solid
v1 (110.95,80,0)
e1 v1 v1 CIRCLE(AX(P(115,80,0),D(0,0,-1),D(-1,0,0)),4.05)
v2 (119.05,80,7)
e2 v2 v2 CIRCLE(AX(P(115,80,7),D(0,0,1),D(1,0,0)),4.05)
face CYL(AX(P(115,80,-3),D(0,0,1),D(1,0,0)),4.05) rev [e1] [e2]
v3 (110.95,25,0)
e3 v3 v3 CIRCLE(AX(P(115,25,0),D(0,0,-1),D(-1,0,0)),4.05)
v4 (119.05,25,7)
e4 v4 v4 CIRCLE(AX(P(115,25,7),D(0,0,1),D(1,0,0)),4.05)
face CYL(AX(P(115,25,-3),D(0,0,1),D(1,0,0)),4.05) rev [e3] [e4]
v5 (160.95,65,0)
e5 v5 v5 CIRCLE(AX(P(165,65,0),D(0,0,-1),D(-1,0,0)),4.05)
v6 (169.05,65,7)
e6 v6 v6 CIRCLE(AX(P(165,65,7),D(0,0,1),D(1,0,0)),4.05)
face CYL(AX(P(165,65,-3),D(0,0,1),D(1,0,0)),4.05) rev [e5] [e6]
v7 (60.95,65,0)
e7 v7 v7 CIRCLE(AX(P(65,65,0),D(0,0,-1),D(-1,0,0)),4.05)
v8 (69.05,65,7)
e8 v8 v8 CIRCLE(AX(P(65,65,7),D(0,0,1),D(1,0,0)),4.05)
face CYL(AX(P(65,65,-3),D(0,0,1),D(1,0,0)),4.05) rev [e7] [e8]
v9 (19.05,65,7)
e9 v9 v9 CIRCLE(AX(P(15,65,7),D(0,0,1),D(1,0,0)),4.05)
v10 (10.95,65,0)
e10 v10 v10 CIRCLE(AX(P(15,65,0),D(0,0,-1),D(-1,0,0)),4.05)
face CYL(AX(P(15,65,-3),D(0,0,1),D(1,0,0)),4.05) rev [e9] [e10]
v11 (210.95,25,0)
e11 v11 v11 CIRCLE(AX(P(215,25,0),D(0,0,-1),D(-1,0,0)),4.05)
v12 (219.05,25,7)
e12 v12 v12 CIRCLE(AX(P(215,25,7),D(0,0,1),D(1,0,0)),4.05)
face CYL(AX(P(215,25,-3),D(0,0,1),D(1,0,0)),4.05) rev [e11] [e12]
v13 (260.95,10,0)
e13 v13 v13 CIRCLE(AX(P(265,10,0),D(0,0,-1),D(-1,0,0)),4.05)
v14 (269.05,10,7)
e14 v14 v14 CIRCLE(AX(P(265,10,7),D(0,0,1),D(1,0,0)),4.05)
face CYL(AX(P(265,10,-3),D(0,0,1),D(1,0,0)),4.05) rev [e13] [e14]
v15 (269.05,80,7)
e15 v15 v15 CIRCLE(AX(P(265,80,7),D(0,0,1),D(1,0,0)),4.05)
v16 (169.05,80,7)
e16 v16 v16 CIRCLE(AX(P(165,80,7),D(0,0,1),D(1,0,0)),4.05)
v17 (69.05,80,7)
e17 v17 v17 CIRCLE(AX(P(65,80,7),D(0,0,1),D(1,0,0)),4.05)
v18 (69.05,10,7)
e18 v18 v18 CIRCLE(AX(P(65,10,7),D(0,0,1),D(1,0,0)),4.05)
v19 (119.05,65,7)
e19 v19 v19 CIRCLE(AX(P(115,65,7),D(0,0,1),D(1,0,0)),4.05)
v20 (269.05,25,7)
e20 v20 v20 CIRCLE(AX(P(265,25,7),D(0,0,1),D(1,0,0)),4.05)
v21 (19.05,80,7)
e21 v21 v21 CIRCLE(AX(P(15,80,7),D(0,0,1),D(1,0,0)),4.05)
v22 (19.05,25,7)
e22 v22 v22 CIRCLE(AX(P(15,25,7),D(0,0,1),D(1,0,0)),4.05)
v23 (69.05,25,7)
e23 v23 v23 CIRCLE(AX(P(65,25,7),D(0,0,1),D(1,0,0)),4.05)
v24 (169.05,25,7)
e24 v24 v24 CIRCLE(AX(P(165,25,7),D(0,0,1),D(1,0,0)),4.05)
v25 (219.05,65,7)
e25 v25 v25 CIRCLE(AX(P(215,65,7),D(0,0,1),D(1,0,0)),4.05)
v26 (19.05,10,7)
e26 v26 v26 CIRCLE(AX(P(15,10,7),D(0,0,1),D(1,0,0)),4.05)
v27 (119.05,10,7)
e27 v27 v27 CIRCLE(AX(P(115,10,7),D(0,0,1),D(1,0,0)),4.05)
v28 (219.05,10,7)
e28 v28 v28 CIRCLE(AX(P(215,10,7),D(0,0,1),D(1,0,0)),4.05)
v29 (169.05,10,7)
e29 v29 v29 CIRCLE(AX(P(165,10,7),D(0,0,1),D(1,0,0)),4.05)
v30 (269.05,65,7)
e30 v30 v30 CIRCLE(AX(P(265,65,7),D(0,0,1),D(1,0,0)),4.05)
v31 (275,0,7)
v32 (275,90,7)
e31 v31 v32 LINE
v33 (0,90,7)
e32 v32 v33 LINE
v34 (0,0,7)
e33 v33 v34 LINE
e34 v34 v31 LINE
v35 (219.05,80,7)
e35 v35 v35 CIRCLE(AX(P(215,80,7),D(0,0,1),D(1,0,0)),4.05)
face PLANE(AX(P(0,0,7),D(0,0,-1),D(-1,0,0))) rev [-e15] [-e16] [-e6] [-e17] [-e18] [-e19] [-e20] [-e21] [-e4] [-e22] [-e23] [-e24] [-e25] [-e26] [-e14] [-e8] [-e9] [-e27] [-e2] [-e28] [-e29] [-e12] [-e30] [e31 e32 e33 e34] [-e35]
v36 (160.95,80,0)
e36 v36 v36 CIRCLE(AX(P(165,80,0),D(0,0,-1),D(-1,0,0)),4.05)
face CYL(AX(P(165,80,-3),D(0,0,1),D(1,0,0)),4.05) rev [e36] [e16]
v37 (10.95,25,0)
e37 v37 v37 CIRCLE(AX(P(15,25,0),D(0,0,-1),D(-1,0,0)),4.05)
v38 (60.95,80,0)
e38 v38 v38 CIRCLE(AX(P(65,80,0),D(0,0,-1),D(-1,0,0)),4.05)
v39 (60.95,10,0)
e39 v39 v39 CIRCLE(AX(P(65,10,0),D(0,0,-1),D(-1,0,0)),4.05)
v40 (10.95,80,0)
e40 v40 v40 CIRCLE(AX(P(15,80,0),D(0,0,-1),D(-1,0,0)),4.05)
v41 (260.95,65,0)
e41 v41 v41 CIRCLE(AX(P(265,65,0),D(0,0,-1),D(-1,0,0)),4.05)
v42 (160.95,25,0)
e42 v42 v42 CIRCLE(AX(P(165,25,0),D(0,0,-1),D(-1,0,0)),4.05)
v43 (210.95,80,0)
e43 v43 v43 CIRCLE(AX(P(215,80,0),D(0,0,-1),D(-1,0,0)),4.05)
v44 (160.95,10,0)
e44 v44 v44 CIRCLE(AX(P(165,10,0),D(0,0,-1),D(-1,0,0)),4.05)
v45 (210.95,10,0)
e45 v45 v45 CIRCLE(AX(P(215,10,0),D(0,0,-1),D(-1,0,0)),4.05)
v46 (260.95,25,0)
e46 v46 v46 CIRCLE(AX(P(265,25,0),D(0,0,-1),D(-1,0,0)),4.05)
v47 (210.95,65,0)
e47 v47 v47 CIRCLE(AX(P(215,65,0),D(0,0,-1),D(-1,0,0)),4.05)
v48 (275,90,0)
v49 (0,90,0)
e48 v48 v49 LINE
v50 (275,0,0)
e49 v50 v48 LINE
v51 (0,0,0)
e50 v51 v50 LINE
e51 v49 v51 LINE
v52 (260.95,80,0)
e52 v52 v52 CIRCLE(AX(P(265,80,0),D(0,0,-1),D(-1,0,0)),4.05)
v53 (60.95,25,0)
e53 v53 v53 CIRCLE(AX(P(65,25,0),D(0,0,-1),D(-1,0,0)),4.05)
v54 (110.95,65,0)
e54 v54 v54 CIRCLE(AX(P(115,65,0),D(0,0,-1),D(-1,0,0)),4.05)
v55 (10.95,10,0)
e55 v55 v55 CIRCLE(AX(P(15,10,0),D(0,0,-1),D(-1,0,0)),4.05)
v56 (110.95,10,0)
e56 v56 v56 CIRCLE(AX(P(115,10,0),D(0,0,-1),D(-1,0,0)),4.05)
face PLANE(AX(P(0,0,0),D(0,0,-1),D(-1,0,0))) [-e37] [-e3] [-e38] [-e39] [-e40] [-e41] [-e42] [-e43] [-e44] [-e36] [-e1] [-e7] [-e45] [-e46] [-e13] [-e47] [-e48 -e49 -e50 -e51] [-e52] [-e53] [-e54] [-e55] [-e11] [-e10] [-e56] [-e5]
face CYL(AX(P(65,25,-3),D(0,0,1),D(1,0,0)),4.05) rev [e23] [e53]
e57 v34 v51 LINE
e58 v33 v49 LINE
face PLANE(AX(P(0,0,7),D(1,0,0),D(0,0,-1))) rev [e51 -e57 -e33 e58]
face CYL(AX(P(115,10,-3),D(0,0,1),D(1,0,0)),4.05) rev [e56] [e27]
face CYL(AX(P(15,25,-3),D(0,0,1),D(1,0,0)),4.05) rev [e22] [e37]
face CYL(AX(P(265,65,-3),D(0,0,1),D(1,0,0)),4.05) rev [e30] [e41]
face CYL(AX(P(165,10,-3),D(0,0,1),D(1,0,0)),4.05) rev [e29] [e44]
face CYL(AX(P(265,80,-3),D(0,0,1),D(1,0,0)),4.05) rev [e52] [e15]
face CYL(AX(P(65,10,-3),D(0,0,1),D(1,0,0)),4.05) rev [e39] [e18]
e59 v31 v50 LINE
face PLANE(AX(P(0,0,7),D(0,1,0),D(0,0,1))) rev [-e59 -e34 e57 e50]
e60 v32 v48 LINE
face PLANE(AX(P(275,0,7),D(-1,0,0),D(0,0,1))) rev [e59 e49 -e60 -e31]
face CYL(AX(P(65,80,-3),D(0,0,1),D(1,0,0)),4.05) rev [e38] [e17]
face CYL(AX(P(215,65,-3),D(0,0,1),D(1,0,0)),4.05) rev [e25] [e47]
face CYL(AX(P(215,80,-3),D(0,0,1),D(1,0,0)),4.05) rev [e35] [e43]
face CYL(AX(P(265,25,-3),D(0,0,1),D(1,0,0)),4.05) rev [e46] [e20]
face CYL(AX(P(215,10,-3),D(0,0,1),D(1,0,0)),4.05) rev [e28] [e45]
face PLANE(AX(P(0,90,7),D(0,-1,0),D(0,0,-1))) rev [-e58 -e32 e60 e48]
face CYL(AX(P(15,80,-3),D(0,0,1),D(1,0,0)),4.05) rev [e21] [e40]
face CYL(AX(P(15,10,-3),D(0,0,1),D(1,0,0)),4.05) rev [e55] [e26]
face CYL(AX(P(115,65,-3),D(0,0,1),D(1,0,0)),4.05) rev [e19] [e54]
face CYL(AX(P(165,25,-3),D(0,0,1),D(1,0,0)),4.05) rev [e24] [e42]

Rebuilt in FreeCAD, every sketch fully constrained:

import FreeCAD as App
import Part
import Sketcher

V = App.Vector

doc = App.newDocument("Part")
body = doc.addObject("PartDesign::Body", "Body")

# Sketch on XY plane
sketch1 = doc.addObject("Sketcher::SketchObject", "Sketch")
body.addObject(sketch1)
sketch1.AttachmentSupport = (doc.XY_Plane, [""])
sketch1.MapMode = "FlatFace"
sketch1.addGeometry(Part.LineSegment(V(0, 90, 0), V(0, 0, 0)), False)
sketch1.addGeometry(Part.LineSegment(V(0, 0, 0), V(275, 0, 0)), False)
sketch1.addGeometry(Part.LineSegment(V(275, 0, 0), V(275, 90, 0)), False)
sketch1.addGeometry(Part.LineSegment(V(275, 90, 0), V(0, 90, 0)), False)
sketch1.addConstraint(Sketcher.Constraint("Coincident", 0, 2, 1, 1))
sketch1.addConstraint(Sketcher.Constraint("Coincident", 1, 2, 2, 1))
sketch1.addConstraint(Sketcher.Constraint("Coincident", 2, 2, 3, 1))
sketch1.addConstraint(Sketcher.Constraint("Coincident", 3, 2, 0, 1))
sketch1.addConstraint(Sketcher.Constraint("Vertical", 0))
sketch1.addConstraint(Sketcher.Constraint("Horizontal", 1))
sketch1.addConstraint(Sketcher.Constraint("Vertical", 2))
sketch1.addConstraint(Sketcher.Constraint("Horizontal", 3))
sketch1.addConstraint(Sketcher.Constraint("Coincident", 0, 2, -1, 1))
sketch1.addConstraint(Sketcher.Constraint("DistanceX", 1, 1, 1, 2, 275.0))
sketch1.addConstraint(Sketcher.Constraint("DistanceY", 0, 2, 0, 1, 90.0))
pad1 = doc.addObject("PartDesign::Pad", "Pad")
body.addObject(pad1)
pad1.Profile = sketch1
pad1.Length = 7

# Sketch on XY plane
sketch2 = doc.addObject("Sketcher::SketchObject", "Sketch001")
body.addObject(sketch2)
sketch2.AttachmentSupport = (doc.XY_Plane, [""])
sketch2.MapMode = "FlatFace"
sketch2.AttachmentOffset = App.Placement(V(0, 0, 7), App.Rotation())
sketch2.addGeometry(Part.Circle(V(265, 65, 0), V(0, 0, 1), 4), False)
sketch2.addGeometry(Part.Circle(V(265, 25, 0), V(0, 0, 1), 4), False)
sketch2.addGeometry(Part.Circle(V(215, 65, 0), V(0, 0, 1), 4), False)
sketch2.addGeometry(Part.Circle(V(215, 25, 0), V(0, 0, 1), 4), False)
sketch2.addGeometry(Part.Circle(V(165, 65, 0), V(0, 0, 1), 4), False)
sketch2.addGeometry(Part.Circle(V(165, 25, 0), V(0, 0, 1), 4), False)
sketch2.addGeometry(Part.Circle(V(115, 65, 0), V(0, 0, 1), 4), False)
sketch2.addGeometry(Part.Circle(V(115, 25, 0), V(0, 0, 1), 4), False)
sketch2.addGeometry(Part.Circle(V(65, 65, 0), V(0, 0, 1), 4), False)
sketch2.addGeometry(Part.Circle(V(65, 25, 0), V(0, 0, 1), 4), False)
sketch2.addGeometry(Part.Circle(V(265, 80, 0), V(0, 0, 1), 4), False)
sketch2.addGeometry(Part.Circle(V(265, 10, 0), V(0, 0, 1), 4), False)
sketch2.addGeometry(Part.Circle(V(215, 80, 0), V(0, 0, 1), 4), False)
sketch2.addGeometry(Part.Circle(V(215, 10, 0), V(0, 0, 1), 4), False)
sketch2.addGeometry(Part.Circle(V(165, 80, 0), V(0, 0, 1), 4), False)
sketch2.addGeometry(Part.Circle(V(165, 10, 0), V(0, 0, 1), 4), False)
sketch2.addGeometry(Part.Circle(V(115, 80, 0), V(0, 0, 1), 4), False)
sketch2.addGeometry(Part.Circle(V(115, 10, 0), V(0, 0, 1), 4), False)
sketch2.addGeometry(Part.Circle(V(65, 80, 0), V(0, 0, 1), 4), False)
sketch2.addGeometry(Part.Circle(V(65, 10, 0), V(0, 0, 1), 4), False)
sketch2.addGeometry(Part.Circle(V(15, 80, 0), V(0, 0, 1), 4), False)
sketch2.addGeometry(Part.Circle(V(15, 25, 0), V(0, 0, 1), 4), False)
sketch2.addGeometry(Part.Circle(V(15, 10, 0), V(0, 0, 1), 4), False)
sketch2.addGeometry(Part.Circle(V(15, 65, 0), V(0, 0, 1), 4), False)
sketch2.addConstraint(Sketcher.Constraint("Equal", 0, 1))
sketch2.addConstraint(Sketcher.Constraint("Equal", 1, 2))
sketch2.addConstraint(Sketcher.Constraint("Equal", 2, 3))
sketch2.addConstraint(Sketcher.Constraint("Equal", 3, 4))
sketch2.addConstraint(Sketcher.Constraint("Equal", 4, 5))
sketch2.addConstraint(Sketcher.Constraint("Equal", 5, 6))
sketch2.addConstraint(Sketcher.Constraint("Equal", 6, 7))
sketch2.addConstraint(Sketcher.Constraint("Equal", 7, 8))
sketch2.addConstraint(Sketcher.Constraint("Equal", 8, 9))
sketch2.addConstraint(Sketcher.Constraint("Equal", 9, 10))
sketch2.addConstraint(Sketcher.Constraint("Equal", 10, 11))
sketch2.addConstraint(Sketcher.Constraint("Equal", 11, 12))
sketch2.addConstraint(Sketcher.Constraint("Equal", 12, 13))
sketch2.addConstraint(Sketcher.Constraint("Equal", 13, 14))
sketch2.addConstraint(Sketcher.Constraint("Equal", 14, 15))
sketch2.addConstraint(Sketcher.Constraint("Equal", 15, 16))
sketch2.addConstraint(Sketcher.Constraint("Equal", 16, 17))
sketch2.addConstraint(Sketcher.Constraint("Equal", 17, 18))
sketch2.addConstraint(Sketcher.Constraint("Equal", 18, 19))
sketch2.addConstraint(Sketcher.Constraint("Equal", 19, 20))
sketch2.addConstraint(Sketcher.Constraint("Equal", 20, 21))
sketch2.addConstraint(Sketcher.Constraint("Equal", 21, 22))
sketch2.addConstraint(Sketcher.Constraint("Equal", 22, 23))
sketch2.addConstraint(Sketcher.Constraint("Horizontal", 0, 3, 2, 3))
sketch2.addConstraint(Sketcher.Constraint("Horizontal", 1, 3, 3, 3))
sketch2.addConstraint(Sketcher.Constraint("Horizontal", 2, 3, 4, 3))
sketch2.addConstraint(Sketcher.Constraint("Horizontal", 3, 3, 5, 3))
sketch2.addConstraint(Sketcher.Constraint("Horizontal", 4, 3, 6, 3))
sketch2.addConstraint(Sketcher.Constraint("Horizontal", 5, 3, 7, 3))
sketch2.addConstraint(Sketcher.Constraint("Horizontal", 6, 3, 8, 3))
sketch2.addConstraint(Sketcher.Constraint("Horizontal", 7, 3, 9, 3))
sketch2.addConstraint(Sketcher.Constraint("Horizontal", 10, 3, 12, 3))
sketch2.addConstraint(Sketcher.Constraint("Horizontal", 11, 3, 13, 3))
sketch2.addConstraint(Sketcher.Constraint("Horizontal", 12, 3, 14, 3))
sketch2.addConstraint(Sketcher.Constraint("Horizontal", 13, 3, 15, 3))
sketch2.addConstraint(Sketcher.Constraint("Horizontal", 14, 3, 16, 3))
sketch2.addConstraint(Sketcher.Constraint("Horizontal", 15, 3, 17, 3))
sketch2.addConstraint(Sketcher.Constraint("Horizontal", 16, 3, 18, 3))
sketch2.addConstraint(Sketcher.Constraint("Horizontal", 17, 3, 19, 3))
sketch2.addConstraint(Sketcher.Constraint("Horizontal", 18, 3, 20, 3))
sketch2.addConstraint(Sketcher.Constraint("Horizontal", 9, 3, 21, 3))
sketch2.addConstraint(Sketcher.Constraint("Horizontal", 19, 3, 22, 3))
sketch2.addConstraint(Sketcher.Constraint("Horizontal", 8, 3, 23, 3))
sketch2.addConstraint(Sketcher.Constraint("Vertical", 0, 3, 1, 3))
sketch2.addConstraint(Sketcher.Constraint("Vertical", 2, 3, 3, 3))
sketch2.addConstraint(Sketcher.Constraint("Vertical", 4, 3, 5, 3))
sketch2.addConstraint(Sketcher.Constraint("Vertical", 6, 3, 7, 3))
sketch2.addConstraint(Sketcher.Constraint("Vertical", 8, 3, 9, 3))
sketch2.addConstraint(Sketcher.Constraint("Vertical", 1, 3, 10, 3))
sketch2.addConstraint(Sketcher.Constraint("Vertical", 10, 3, 11, 3))
sketch2.addConstraint(Sketcher.Constraint("Vertical", 3, 3, 12, 3))
sketch2.addConstraint(Sketcher.Constraint("Vertical", 12, 3, 13, 3))
sketch2.addConstraint(Sketcher.Constraint("Vertical", 5, 3, 14, 3))
sketch2.addConstraint(Sketcher.Constraint("Vertical", 14, 3, 15, 3))
sketch2.addConstraint(Sketcher.Constraint("Vertical", 7, 3, 16, 3))
sketch2.addConstraint(Sketcher.Constraint("Vertical", 16, 3, 17, 3))
sketch2.addConstraint(Sketcher.Constraint("Vertical", 9, 3, 18, 3))
sketch2.addConstraint(Sketcher.Constraint("Vertical", 18, 3, 19, 3))
sketch2.addConstraint(Sketcher.Constraint("Vertical", 20, 3, 21, 3))
sketch2.addConstraint(Sketcher.Constraint("Vertical", 21, 3, 22, 3))
sketch2.addConstraint(Sketcher.Constraint("Vertical", 22, 3, 23, 3))
sketch2.addConstraint(Sketcher.Constraint("Diameter", 0, 8.1))
sketch2.addConstraint(Sketcher.Constraint("DistanceX", -1, 1, 0, 3, 265.0))
sketch2.addConstraint(Sketcher.Constraint("DistanceY", -1, 1, 0, 3, 65.0))
sketch2.addConstraint(Sketcher.Constraint("DistanceY", -1, 1, 1, 3, 25.0))
sketch2.addConstraint(Sketcher.Constraint("DistanceX", -1, 1, 2, 3, 215.0))
sketch2.addConstraint(Sketcher.Constraint("DistanceX", -1, 1, 4, 3, 165.0))
sketch2.addConstraint(Sketcher.Constraint("DistanceX", -1, 1, 6, 3, 115.0))
sketch2.addConstraint(Sketcher.Constraint("DistanceX", -1, 1, 8, 3, 65.0))
sketch2.addConstraint(Sketcher.Constraint("DistanceY", -1, 1, 10, 3, 80.0))
sketch2.addConstraint(Sketcher.Constraint("DistanceY", -1, 1, 11, 3, 10.0))
sketch2.addConstraint(Sketcher.Constraint("DistanceX", -1, 1, 20, 3, 15.0))
pocket1 = doc.addObject("PartDesign::Pocket", "Pocket")
body.addObject(pocket1)
pocket1.Profile = sketch2
pocket1.Length = 10

doc.recompute()
